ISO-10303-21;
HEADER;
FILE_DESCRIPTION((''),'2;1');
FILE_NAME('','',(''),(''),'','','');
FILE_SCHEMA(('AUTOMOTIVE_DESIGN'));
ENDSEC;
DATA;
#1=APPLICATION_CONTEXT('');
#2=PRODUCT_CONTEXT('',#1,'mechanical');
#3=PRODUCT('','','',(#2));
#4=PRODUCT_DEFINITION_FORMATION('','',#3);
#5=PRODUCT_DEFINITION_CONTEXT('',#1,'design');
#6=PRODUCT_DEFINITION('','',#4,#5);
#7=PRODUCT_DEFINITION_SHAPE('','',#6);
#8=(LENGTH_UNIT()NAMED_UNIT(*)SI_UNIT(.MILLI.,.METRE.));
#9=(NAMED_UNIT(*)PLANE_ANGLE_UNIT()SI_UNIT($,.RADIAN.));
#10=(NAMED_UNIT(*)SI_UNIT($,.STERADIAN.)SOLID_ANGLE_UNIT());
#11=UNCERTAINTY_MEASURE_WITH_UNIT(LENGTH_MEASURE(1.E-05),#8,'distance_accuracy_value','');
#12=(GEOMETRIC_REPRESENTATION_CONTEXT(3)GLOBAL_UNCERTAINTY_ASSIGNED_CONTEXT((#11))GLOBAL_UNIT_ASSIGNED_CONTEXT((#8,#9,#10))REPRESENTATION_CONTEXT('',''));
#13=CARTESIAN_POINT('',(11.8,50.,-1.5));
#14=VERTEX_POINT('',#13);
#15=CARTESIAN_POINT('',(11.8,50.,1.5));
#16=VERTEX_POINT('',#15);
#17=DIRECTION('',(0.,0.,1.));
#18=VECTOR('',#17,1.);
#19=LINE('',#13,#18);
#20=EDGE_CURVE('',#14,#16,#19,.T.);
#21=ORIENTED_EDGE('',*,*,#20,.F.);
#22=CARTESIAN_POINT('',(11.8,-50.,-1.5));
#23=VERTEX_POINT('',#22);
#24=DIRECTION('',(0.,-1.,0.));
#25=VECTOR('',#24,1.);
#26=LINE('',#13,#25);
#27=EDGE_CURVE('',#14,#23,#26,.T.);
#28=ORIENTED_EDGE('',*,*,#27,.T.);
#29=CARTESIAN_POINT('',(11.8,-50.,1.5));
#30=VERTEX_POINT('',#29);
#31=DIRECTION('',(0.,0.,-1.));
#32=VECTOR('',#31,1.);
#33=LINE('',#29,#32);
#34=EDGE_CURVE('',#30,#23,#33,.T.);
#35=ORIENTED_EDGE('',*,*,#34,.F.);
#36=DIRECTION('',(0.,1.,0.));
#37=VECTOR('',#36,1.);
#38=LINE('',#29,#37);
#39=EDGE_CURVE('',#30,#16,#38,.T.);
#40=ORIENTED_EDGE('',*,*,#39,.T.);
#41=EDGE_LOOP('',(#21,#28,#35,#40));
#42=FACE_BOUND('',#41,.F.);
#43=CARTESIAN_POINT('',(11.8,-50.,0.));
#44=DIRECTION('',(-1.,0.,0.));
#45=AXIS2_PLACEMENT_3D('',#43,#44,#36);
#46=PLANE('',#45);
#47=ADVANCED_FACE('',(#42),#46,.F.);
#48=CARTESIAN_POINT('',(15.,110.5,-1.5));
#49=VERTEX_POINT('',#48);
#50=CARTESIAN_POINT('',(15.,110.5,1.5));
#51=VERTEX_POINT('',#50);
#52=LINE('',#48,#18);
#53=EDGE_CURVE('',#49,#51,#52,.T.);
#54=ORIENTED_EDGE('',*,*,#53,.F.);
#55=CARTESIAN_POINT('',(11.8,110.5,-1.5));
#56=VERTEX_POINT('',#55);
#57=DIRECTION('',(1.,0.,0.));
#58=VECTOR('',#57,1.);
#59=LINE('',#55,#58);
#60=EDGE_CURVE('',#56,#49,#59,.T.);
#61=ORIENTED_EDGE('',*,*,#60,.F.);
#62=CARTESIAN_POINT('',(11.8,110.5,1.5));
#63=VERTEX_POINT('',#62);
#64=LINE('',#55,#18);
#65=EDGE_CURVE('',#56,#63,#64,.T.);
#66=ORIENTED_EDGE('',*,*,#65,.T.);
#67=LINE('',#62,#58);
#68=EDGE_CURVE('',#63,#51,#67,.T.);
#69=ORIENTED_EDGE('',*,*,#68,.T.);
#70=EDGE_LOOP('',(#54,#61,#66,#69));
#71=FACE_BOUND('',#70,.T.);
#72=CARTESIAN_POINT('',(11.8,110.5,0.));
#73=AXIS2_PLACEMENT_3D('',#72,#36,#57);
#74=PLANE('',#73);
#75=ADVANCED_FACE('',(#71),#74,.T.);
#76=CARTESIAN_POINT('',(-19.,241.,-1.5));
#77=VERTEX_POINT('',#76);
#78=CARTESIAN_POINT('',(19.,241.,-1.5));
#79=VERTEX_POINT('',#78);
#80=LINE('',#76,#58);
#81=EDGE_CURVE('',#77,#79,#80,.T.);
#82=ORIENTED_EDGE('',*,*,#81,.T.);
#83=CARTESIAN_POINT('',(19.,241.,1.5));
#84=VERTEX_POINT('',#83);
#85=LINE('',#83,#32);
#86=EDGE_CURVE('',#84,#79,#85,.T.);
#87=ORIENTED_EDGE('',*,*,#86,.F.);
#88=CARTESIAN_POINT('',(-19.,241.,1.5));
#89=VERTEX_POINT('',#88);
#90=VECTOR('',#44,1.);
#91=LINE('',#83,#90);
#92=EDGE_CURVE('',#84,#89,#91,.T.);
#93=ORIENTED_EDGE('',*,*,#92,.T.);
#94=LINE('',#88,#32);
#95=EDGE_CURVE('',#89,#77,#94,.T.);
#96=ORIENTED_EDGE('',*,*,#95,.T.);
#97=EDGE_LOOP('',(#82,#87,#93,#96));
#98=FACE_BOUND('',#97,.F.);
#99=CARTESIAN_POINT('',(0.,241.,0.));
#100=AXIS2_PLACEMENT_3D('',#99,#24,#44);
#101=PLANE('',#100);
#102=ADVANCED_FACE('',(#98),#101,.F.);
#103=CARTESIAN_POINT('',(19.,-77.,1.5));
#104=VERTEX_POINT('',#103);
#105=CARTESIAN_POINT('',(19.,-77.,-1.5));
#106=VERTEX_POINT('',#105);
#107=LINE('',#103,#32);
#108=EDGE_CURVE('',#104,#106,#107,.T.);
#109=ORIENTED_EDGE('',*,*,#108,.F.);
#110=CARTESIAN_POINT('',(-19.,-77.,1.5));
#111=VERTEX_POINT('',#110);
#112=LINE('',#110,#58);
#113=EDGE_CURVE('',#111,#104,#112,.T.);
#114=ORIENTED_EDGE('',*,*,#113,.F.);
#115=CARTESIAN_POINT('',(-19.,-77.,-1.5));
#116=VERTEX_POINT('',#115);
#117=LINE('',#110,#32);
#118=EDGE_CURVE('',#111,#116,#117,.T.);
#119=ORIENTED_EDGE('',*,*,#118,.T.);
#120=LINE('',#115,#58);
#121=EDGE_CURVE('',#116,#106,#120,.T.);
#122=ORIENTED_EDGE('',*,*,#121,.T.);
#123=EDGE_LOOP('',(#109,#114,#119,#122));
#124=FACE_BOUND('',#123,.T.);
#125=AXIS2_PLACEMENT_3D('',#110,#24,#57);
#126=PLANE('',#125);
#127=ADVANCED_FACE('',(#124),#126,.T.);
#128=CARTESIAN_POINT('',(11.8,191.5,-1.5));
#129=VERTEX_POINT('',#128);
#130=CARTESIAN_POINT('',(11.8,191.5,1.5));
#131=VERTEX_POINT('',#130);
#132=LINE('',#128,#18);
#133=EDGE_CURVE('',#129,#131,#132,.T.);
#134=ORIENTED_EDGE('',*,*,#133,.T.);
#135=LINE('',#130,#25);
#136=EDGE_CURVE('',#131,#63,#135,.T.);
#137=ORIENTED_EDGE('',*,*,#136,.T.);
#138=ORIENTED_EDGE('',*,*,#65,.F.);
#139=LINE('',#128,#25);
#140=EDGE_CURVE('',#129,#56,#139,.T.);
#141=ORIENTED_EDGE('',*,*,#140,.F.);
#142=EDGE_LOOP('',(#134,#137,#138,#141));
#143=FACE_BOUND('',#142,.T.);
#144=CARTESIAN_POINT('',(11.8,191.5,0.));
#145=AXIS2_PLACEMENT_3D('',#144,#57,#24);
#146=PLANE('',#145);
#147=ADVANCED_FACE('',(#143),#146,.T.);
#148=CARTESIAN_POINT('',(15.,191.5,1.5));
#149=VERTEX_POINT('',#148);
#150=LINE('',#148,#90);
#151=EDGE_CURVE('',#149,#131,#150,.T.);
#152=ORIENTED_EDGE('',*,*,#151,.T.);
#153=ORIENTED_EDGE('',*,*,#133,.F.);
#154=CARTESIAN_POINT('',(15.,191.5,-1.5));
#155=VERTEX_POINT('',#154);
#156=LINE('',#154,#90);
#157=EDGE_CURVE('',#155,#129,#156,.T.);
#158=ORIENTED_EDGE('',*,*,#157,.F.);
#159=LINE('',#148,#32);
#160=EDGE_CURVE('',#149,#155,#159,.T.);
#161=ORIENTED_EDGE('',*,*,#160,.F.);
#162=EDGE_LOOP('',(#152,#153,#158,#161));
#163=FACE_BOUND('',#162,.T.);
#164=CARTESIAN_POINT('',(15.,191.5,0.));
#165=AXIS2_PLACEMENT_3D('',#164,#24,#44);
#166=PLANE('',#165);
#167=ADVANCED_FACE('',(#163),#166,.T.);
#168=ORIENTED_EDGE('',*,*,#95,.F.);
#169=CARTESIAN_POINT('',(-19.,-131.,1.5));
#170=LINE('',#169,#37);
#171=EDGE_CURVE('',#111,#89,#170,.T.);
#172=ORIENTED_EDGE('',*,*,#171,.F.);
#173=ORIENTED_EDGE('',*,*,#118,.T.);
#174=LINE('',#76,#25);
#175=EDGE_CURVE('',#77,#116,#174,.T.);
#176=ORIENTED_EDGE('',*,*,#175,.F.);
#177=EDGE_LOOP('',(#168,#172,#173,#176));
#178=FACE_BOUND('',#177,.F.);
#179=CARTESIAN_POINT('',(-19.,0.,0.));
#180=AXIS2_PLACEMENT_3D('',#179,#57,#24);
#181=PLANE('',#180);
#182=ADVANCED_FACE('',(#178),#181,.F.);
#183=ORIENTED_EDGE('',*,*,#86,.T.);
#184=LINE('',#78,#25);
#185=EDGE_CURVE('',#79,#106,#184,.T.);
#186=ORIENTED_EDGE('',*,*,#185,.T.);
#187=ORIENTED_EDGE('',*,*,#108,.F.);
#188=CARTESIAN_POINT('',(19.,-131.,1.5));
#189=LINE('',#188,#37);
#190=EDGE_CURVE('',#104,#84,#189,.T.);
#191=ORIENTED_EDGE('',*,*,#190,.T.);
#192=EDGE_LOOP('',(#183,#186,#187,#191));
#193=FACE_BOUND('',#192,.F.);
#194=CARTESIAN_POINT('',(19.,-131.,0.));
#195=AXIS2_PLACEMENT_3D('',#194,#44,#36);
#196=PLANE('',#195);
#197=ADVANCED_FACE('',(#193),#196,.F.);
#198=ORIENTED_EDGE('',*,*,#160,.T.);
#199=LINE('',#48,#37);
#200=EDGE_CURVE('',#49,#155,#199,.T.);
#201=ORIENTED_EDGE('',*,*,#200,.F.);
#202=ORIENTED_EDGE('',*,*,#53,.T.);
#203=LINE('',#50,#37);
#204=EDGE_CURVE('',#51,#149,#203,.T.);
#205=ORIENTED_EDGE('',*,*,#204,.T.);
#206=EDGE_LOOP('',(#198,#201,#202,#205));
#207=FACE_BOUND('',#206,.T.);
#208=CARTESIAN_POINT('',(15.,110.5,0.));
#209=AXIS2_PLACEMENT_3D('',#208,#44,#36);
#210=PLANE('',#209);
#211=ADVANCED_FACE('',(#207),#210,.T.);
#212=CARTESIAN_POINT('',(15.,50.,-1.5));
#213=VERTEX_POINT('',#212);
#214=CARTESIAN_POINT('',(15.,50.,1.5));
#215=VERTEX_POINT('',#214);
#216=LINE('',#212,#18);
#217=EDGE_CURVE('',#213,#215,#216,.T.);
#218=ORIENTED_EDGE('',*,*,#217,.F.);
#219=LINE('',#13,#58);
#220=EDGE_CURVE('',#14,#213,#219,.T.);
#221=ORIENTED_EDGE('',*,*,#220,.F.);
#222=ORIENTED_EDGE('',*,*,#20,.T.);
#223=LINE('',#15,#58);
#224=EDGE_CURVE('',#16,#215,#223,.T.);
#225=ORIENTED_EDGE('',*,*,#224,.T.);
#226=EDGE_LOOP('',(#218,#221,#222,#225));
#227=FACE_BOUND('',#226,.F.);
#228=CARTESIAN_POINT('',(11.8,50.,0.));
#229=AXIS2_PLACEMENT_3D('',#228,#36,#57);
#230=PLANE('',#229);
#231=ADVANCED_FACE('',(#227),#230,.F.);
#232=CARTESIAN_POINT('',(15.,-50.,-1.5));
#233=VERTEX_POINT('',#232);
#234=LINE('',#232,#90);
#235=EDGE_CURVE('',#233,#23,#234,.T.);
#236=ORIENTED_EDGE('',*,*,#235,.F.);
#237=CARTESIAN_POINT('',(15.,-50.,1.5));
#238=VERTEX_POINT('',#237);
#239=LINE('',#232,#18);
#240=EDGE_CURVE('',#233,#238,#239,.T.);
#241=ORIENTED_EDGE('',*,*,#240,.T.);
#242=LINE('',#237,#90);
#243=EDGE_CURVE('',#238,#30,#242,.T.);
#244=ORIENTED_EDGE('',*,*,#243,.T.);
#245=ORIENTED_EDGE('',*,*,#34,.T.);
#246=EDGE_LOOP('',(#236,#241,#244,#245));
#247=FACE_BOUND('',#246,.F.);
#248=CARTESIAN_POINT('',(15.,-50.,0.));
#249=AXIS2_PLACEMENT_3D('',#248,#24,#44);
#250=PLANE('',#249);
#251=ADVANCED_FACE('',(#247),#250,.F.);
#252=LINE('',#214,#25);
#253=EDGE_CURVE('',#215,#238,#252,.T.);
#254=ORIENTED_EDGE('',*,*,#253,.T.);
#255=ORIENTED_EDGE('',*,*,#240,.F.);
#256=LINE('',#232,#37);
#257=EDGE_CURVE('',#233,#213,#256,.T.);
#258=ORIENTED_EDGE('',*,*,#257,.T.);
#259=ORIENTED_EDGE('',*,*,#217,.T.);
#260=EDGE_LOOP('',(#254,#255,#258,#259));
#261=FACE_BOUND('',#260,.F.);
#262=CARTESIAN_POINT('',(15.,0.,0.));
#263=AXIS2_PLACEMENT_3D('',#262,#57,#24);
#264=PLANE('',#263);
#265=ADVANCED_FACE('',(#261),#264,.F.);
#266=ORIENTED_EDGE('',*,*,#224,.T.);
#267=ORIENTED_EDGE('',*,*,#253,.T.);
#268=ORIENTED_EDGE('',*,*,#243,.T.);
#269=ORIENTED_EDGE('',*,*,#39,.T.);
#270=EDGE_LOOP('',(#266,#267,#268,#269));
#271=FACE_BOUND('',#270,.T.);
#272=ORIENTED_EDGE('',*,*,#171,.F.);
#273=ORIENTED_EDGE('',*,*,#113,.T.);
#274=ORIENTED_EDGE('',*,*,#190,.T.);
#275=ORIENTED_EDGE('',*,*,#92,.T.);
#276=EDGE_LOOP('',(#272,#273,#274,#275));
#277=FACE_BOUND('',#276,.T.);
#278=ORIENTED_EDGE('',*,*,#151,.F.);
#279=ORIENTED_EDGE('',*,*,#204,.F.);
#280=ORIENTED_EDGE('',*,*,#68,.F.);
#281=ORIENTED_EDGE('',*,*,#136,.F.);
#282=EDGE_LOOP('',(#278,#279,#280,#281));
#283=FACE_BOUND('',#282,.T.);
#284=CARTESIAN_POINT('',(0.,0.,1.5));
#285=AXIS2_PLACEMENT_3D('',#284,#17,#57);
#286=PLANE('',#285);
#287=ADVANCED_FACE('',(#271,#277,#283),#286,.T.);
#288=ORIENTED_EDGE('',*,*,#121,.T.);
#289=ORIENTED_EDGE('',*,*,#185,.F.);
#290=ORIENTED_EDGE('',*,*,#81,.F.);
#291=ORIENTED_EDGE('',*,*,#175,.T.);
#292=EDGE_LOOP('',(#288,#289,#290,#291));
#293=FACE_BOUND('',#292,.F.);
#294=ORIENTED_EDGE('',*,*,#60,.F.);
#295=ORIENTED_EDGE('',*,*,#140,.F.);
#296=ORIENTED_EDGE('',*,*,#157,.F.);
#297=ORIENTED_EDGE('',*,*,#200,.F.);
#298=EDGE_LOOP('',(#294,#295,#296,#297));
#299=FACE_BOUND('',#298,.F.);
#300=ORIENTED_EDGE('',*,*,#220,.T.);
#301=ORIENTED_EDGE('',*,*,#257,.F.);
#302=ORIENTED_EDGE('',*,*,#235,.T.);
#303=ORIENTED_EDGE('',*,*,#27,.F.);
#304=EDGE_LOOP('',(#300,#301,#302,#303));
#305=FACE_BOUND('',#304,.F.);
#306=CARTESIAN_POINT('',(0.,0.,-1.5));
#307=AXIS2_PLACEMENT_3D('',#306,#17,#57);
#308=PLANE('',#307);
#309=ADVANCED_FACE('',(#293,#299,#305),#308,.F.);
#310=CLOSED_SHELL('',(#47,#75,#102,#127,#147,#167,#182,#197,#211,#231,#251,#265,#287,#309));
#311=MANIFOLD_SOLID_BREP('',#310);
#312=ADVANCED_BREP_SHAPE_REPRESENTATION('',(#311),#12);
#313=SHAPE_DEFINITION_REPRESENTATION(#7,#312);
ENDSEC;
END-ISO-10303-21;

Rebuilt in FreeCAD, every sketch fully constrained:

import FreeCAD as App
import Part
import Sketcher
Q = App.Units.Quantity

doc = App.newDocument("Part")
body = doc.addObject("PartDesign::Body", "Body")

sketch1 = body.newObject("Sketcher::SketchObject", "Sketch")
sketch1.AttachmentSupport = (doc.getObject("XY_Plane"), [""])
sketch1.MapMode = "FlatFace"
sketch1.addGeometry([
    Part.LineSegment(App.Vector(-19, -131, 0), App.Vector(19, -131, 0)),
    Part.LineSegment(App.Vector(19, -131, 0), App.Vector(19, 241, 0)),
    Part.LineSegment(App.Vector(19, 241, 0), App.Vector(-19, 241, 0)),
    Part.LineSegment(App.Vector(-19, 241, 0), App.Vector(-19, -131, 0)),
    Part.LineSegment(App.Vector(11.8, -50, 0), App.Vector(11.8, 50, 0)),
    Part.LineSegment(App.Vector(11.8, 50, 0), App.Vector(15, 50, 0)),
    Part.LineSegment(App.Vector(15, 50, 0), App.Vector(15, -50, 0)),
    Part.LineSegment(App.Vector(15, -50, 0), App.Vector(11.8, -50, 0)),
    Part.LineSegment(App.Vector(15, 191.5, 0), App.Vector(15, 110.5, 0)),
    Part.LineSegment(App.Vector(15, 110.5, 0), App.Vector(11.8, 110.5, 0)),
    Part.LineSegment(App.Vector(11.8, 110.5, 0), App.Vector(11.8, 191.5, 0)),
    Part.LineSegment(App.Vector(11.8, 191.5, 0), App.Vector(15, 191.5, 0)),
], False)
sketch1.addConstraint([
    Sketcher.Constraint("Coincident", 0, 2, 1, 1),
    Sketcher.Constraint("Coincident", 1, 2, 2, 1),
    Sketcher.Constraint("Coincident", 2, 2, 3, 1),
    Sketcher.Constraint("Coincident", 3, 2, 0, 1),
    Sketcher.Constraint("Coincident", 4, 2, 5, 1),
    Sketcher.Constraint("Coincident", 5, 2, 6, 1),
    Sketcher.Constraint("Coincident", 6, 2, 7, 1),
    Sketcher.Constraint("Coincident", 7, 2, 4, 1),
    Sketcher.Constraint("Coincident", 8, 2, 9, 1),
    Sketcher.Constraint("Coincident", 9, 2, 10, 1),
    Sketcher.Constraint("Coincident", 10, 2, 11, 1),
    Sketcher.Constraint("Coincident", 11, 2, 8, 1),
    Sketcher.Constraint("Horizontal", 0),
    Sketcher.Constraint("Vertical", 1),
    Sketcher.Constraint("Horizontal", 2),
    Sketcher.Constraint("Vertical", 3),
    Sketcher.Constraint("Vertical", 4),
    Sketcher.Constraint("Horizontal", 5),
    Sketcher.Constraint("Vertical", 6),
    Sketcher.Constraint("Horizontal", 7),
    Sketcher.Constraint("Vertical", 8),
    Sketcher.Constraint("Horizontal", 9),
    Sketcher.Constraint("Vertical", 10),
    Sketcher.Constraint("Horizontal", 11),
    Sketcher.Constraint("Vertical", 6, 2, 8, 2),
    Sketcher.Constraint("Vertical", 7, 2, 9, 2),
    Sketcher.Constraint("DistanceX", 0, 1, 0, 2, Q("38 mm")),
    Sketcher.Constraint("DistanceY", 4, 1, 4, 2, Q("100 mm")),
    Sketcher.Constraint("DistanceY", 8, 2, 8, 1, Q("81 mm")),
    Sketcher.Constraint("DistanceX", 5, 1, 5, 2, Q("3.2 mm")),
    Sketcher.Constraint("DistanceX", 5, 2, 0, 2, Q("4 mm")),
    Sketcher.Constraint("DistanceY", 0, 2, 6, 2, Q("81 mm")),
    Sketcher.Constraint("DistanceY", 10, 2, 1, 2, Q("49.5 mm")),
    Sketcher.Constraint("DistanceY", 1, 1, 1, 2, Q("372 mm")),
    Sketcher.Constraint("DistanceX", -1, 1, 0, 2, Q("19 mm")),
    Sketcher.Constraint("DistanceY", 0, 2, -1, 1, Q("131 mm")),
])
pad1 = body.newObject("PartDesign::Pad", "Pad")
pad1.Profile = sketch1
pad1.Length = 3
pad1.Midplane = True

sketch2 = body.newObject("Sketcher::SketchObject", "Sketch001")
sketch2.AttachmentSupport = (doc.getObject("XY_Plane"), [""])
sketch2.MapMode = "FlatFace"
sketch2.AttachmentOffset = App.Placement(App.Vector(0, 0, 1.5), App.Rotation())
sketch2.addGeometry([
    Part.LineSegment(App.Vector(19, -77, 0), App.Vector(-19, -77, 0)),
    Part.LineSegment(App.Vector(-19, -77, 0), App.Vector(-19, -131, 0)),
    Part.LineSegment(App.Vector(-19, -131, 0), App.Vector(19, -131, 0)),
    Part.LineSegment(App.Vector(19, -131, 0), App.Vector(19, -77, 0)),
], False)
sketch2.addConstraint([
    Sketcher.Constraint("Coincident", 0, 2, 1, 1),
    Sketcher.Constraint("Coincident", 1, 2, 2, 1),
    Sketcher.Constraint("Coincident", 2, 2, 3, 1),
    Sketcher.Constraint("Coincident", 3, 2, 0, 1),
    Sketcher.Constraint("Horizontal", 0),
    Sketcher.Constraint("Vertical", 1),
    Sketcher.Constraint("Horizontal", 2),
    Sketcher.Constraint("Vertical", 3),
    Sketcher.Constraint("DistanceX", 0, 2, 0, 1, Q("38 mm")),
    Sketcher.Constraint("DistanceY", 1, 2, 1, 1, Q("54 mm")),
    Sketcher.Constraint("DistanceX", 0, 2, -1, 1, Q("19 mm")),
    Sketcher.Constraint("DistanceY", 0, 2, -1, 1, Q("77 mm")),
])
pocket1 = body.newObject("PartDesign::Pocket", "Pocket")
pocket1.Profile = sketch2
pocket1.Length = 3

doc.recompute()
